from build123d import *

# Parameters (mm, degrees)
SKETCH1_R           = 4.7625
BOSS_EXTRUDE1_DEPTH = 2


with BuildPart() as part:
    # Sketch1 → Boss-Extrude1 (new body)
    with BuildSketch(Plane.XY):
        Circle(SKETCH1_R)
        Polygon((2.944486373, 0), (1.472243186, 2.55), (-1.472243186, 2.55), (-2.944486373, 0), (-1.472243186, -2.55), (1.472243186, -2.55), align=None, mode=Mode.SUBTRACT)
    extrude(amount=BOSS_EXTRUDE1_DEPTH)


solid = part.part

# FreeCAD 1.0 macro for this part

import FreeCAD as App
import Part
import Sketcher
Q = App.Units.Quantity

doc = App.newDocument("Part")
body = doc.addObject("PartDesign::Body", "Body")

# Sketch on XY plane
sketch1 = doc.addObject("Sketcher::SketchObject", "Sketch")
body.addObject(sketch1)
sketch1.AttachmentSupport = (doc.XY_Plane, [""])
sketch1.MapMode = "FlatFace"
sketch1.addGeometry([
    Part.Circle(App.Vector(0, 0, 0), App.Vector(0, 0, 1), 4.8),  # 0
    Part.LineSegment(App.Vector(1.5, 2.5, 0), App.Vector(2.9, 0, 0)),  # 1
    Part.LineSegment(App.Vector(2.9, 0, 0), App.Vector(1.5, -2.5, 0)),  # 2
    Part.LineSegment(App.Vector(1.5, -2.5, 0), App.Vector(-1.5, -2.5, 0)),  # 3
    Part.LineSegment(App.Vector(-1.5, -2.5, 0), App.Vector(-2.9, 0, 0)),  # 4
    Part.LineSegment(App.Vector(-2.9, 0, 0), App.Vector(-1.5, 2.5, 0)),  # 5
    Part.LineSegment(App.Vector(-1.5, 2.5, 0), App.Vector(1.5, 2.5, 0)),  # 6
], False)
sketch1.addConstraint([
    Sketcher.Constraint("Coincident", 1, 2, 2, 1),
    Sketcher.Constraint("Coincident", 2, 2, 3, 1),
    Sketcher.Constraint("Coincident", 3, 2, 4, 1),
    Sketcher.Constraint("Coincident", 4, 2, 5, 1),
    Sketcher.Constraint("Coincident", 5, 2, 6, 1),
    Sketcher.Constraint("Coincident", 6, 2, 1, 1),
    Sketcher.Constraint("Horizontal", 3),
    Sketcher.Constraint("Horizontal", 6),
    Sketcher.Constraint("Coincident", 0, 3, -1, 1),
    Sketcher.Constraint("Symmetric", 1, 2, 4, 2, -1, 1),
    Sketcher.Constraint("Symmetric", 2, 2, 5, 2, -1, 1),
    Sketcher.Constraint("PointOnObject", 1, 2, -1),
    Sketcher.Constraint("Parallel", 1, 4),
    Sketcher.Constraint("Vertical", 3, 2, 5, 2),
    Sketcher.Constraint("Angle", 1, Q("-60 deg")),
    Sketcher.Constraint("Diameter", 0, Q("9.525 mm")),
    Sketcher.Constraint("DistanceY", 3, 2, 5, 2, Q("5.1 mm")),
    Sketcher.Constraint("DistanceX", 3, 2, 3, 1, Q("2.944486 mm")),
])
pad1 = doc.addObject("PartDesign::Pad", "Pad")
body.addObject(pad1)
pad1.Profile = sketch1
pad1.Length = 2

doc.recompute()
